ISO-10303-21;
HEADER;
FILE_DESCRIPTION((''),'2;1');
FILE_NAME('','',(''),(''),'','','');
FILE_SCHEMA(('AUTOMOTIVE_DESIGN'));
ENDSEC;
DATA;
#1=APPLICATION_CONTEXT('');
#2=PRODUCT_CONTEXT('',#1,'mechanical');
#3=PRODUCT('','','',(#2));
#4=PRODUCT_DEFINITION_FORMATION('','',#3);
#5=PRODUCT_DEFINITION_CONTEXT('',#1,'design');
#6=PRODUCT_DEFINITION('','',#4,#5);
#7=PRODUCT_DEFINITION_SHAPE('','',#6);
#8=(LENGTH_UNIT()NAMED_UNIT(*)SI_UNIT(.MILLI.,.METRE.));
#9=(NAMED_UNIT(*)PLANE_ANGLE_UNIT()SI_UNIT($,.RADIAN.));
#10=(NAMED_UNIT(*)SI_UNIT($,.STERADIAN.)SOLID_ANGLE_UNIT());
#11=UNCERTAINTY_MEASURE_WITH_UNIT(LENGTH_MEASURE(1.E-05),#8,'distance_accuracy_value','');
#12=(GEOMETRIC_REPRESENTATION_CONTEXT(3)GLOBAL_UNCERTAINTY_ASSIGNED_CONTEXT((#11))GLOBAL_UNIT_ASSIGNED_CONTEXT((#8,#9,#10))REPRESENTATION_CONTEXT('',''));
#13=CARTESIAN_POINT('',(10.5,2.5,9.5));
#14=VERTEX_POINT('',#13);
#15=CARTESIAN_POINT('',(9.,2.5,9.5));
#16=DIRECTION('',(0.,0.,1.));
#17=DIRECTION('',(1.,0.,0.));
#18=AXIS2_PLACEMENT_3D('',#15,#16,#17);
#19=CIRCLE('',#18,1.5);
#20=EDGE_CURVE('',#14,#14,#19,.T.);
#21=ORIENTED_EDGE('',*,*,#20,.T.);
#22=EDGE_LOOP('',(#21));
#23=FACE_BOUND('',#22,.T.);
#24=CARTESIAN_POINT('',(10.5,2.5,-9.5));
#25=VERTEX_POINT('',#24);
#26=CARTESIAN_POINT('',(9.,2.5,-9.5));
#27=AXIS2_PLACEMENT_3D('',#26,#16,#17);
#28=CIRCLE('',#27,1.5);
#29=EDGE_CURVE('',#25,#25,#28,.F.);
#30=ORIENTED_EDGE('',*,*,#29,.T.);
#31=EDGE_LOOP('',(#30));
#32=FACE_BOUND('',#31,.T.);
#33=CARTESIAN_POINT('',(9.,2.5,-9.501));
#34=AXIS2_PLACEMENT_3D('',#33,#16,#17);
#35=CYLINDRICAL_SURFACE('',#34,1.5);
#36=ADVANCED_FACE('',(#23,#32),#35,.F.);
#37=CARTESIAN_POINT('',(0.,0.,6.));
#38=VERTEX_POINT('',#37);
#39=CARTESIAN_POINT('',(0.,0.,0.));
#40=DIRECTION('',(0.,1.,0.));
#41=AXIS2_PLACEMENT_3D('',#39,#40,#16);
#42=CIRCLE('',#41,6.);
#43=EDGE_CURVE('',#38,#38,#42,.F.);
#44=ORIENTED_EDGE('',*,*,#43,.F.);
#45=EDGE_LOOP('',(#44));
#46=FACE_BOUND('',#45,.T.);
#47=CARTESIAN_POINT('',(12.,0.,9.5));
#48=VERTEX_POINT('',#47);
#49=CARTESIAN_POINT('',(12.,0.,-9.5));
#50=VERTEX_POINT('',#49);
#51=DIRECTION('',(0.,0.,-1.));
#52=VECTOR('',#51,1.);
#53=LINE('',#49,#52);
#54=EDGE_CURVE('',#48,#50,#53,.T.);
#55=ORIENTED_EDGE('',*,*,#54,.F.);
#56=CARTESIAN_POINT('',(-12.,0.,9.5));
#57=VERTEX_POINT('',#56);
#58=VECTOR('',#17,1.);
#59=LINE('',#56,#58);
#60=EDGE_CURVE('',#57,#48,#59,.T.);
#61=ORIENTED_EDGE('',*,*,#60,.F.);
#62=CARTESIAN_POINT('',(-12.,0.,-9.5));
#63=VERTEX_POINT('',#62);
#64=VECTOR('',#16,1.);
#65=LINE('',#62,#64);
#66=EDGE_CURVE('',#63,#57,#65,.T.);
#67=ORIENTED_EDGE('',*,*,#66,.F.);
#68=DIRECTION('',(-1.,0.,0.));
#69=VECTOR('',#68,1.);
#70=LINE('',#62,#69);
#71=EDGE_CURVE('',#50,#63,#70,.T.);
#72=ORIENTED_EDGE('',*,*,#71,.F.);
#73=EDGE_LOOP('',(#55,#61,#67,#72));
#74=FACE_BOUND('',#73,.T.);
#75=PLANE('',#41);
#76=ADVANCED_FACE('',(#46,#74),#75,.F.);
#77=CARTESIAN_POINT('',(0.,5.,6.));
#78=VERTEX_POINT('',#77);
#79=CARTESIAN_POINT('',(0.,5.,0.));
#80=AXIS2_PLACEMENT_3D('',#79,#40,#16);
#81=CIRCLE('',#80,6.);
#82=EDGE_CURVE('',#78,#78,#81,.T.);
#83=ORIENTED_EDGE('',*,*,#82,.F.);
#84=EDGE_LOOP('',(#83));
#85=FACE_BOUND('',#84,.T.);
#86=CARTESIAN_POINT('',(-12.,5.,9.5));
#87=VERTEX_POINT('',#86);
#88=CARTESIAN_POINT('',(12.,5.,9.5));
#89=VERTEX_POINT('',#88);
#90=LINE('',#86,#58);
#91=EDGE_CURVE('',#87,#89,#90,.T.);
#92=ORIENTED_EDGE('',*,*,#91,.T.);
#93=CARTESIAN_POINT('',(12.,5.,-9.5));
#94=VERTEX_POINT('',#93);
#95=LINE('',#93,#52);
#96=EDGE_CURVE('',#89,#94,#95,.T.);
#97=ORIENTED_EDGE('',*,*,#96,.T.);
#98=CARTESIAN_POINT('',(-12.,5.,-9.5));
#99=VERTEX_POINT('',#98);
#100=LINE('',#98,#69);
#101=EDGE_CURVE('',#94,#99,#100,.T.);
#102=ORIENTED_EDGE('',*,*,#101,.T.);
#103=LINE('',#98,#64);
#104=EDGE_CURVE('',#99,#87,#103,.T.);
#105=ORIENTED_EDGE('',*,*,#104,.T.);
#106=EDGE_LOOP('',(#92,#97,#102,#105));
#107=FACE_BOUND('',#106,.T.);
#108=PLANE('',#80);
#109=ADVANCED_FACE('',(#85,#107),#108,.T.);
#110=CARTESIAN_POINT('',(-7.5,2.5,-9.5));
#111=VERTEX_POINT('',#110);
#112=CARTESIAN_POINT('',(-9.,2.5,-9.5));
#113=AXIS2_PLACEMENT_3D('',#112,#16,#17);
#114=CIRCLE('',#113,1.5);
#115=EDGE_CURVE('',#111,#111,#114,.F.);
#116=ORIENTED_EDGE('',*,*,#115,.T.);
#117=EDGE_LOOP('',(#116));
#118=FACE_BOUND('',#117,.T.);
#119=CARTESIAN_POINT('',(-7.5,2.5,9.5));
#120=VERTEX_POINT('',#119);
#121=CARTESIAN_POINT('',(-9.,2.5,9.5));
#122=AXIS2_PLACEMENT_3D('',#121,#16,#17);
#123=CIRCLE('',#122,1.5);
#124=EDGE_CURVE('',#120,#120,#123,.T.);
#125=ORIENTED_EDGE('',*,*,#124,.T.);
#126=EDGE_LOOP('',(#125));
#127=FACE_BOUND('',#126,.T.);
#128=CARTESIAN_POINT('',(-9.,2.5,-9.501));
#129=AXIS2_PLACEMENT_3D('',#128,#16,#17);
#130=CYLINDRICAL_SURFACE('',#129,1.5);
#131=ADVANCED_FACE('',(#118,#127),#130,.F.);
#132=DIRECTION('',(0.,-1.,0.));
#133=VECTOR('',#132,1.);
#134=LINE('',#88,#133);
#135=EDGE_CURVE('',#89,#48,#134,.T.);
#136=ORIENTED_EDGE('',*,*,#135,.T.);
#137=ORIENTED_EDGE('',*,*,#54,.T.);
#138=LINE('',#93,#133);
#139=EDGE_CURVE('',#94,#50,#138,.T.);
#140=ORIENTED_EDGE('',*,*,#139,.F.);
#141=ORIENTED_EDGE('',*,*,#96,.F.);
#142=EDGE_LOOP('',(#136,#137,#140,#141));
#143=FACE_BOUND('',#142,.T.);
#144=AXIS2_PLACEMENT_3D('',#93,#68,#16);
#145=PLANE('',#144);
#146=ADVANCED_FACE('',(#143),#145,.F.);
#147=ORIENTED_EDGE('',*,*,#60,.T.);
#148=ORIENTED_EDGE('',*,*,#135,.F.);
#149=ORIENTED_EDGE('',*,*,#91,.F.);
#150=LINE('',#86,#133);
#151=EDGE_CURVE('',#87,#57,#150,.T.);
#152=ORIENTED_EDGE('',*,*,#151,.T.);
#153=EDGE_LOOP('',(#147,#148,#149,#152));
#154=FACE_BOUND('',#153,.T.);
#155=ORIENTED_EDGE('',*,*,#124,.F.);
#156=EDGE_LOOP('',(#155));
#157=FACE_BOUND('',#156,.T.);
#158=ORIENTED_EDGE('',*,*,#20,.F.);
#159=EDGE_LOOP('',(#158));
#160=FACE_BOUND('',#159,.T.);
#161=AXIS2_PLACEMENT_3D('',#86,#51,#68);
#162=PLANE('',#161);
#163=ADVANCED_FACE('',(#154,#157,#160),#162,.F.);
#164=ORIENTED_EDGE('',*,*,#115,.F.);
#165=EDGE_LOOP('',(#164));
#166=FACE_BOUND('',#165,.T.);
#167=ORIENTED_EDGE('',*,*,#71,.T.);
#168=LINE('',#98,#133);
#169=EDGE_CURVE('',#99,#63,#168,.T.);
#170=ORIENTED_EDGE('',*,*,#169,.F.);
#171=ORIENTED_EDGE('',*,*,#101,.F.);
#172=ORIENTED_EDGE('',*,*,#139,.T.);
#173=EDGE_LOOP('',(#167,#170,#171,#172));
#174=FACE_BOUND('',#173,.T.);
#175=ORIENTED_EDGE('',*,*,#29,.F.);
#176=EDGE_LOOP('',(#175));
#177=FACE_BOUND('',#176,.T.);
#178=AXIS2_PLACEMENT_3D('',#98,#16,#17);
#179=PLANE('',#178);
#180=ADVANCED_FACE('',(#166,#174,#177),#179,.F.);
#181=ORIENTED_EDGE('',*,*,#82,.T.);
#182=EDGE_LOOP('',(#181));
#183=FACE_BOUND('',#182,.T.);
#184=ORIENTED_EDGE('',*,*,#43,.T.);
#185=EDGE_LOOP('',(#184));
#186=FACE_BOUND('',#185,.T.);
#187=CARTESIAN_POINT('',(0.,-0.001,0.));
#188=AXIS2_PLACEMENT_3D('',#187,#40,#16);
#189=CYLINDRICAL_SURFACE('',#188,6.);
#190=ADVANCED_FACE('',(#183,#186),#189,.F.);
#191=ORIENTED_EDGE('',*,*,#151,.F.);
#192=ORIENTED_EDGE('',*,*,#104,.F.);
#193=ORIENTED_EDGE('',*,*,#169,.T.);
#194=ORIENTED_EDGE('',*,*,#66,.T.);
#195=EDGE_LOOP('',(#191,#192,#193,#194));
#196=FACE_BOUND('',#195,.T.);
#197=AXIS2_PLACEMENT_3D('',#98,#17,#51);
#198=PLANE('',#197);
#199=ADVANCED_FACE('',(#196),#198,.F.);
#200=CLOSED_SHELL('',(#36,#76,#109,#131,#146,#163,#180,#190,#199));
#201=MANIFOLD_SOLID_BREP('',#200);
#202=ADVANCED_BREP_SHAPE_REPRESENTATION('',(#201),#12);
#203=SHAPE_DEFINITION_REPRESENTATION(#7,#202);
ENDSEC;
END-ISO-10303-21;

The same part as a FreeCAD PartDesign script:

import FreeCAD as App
import Part
import Sketcher


def add_polygon(sketch, points):
    """Adds a closed chain of lines whose ends are joined by coincident constraints."""
    first, n = sketch.GeometryCount, len(points)
    for a, b in zip(points, points[1:] + points[:1]):
        sketch.addGeometry(Part.LineSegment(App.Vector(*a, 0), App.Vector(*b, 0)), False)
    for i in range(n):
        sketch.addConstraint(Sketcher.Constraint("Coincident", first + i, 2, first + (i + 1) % n, 1))

doc = App.newDocument("Part")
body = doc.addObject("PartDesign::Body", "Body")

sketch1 = doc.addObject("Sketcher::SketchObject", "Sketch")
body.addObject(sketch1)
sketch1.AttachmentSupport = (doc.XZ_Plane, [""])
sketch1.MapMode = "FlatFace"
add_polygon(sketch1, [(-12, -9.5), (-12, 9.5), (12, 9.5), (12, -9.5)])
sketch1.addConstraint([
    Sketcher.Constraint("Vertical", 0),
    Sketcher.Constraint("Horizontal", 1),
    Sketcher.Constraint("Vertical", 2),
    Sketcher.Constraint("Horizontal", 3),
    Sketcher.Constraint("Symmetric", 0, 2, 2, 2, -1, 1),
    Sketcher.Constraint("DistanceX", 1, 1, 1, 2, 24.0),
    Sketcher.Constraint("DistanceY", 0, 1, 0, 2, 19.0),
])
pad1 = doc.addObject("PartDesign::Pad", "Pad")
body.addObject(pad1)
pad1.Profile = sketch1
pad1.Length = 5
pad1.Reversed = True

sketch2 = doc.addObject("Sketcher::SketchObject", "Sketch001")
body.addObject(sketch2)
sketch2.AttachmentSupport = (doc.XZ_Plane, [""])
sketch2.MapMode = "FlatFace"
sketch2.AttachmentOffset = App.Placement(App.Vector(0, 0, -5), App.Rotation())
sketch2.addGeometry(Part.Circle(App.Vector(0, 0, 0), App.Vector(0, 0, 1), 6), False)
sketch2.addConstraint([
    Sketcher.Constraint("Coincident", 0, 3, -1, 1),
    Sketcher.Constraint("Diameter", 0, 12.0),
])
pocket1 = doc.addObject("PartDesign::Pocket", "Pocket")
body.addObject(pocket1)
pocket1.Profile = sketch2
pocket1.Type = "UpToFirst"
pocket1.Reversed = True

sketch3 = doc.addObject("Sketcher::SketchObject", "Sketch002")
body.addObject(sketch3)
sketch3.AttachmentSupport = (doc.XY_Plane, [""])
sketch3.MapMode = "FlatFace"
sketch3.AttachmentOffset = App.Placement(App.Vector(0, 0, 9.5), App.Rotation())
sketch3.addGeometry(Part.Circle(App.Vector(-9, 2.5, 0), App.Vector(0, 0, 1), 1.5), False)
sketch3.addConstraint([
    Sketcher.Constraint("Diameter", 0, 3.0),
    Sketcher.Constraint("DistanceX", 0, 3, -1, 1, 9.0),
    Sketcher.Constraint("DistanceY", -1, 1, 0, 3, 2.5),
])
pocket2 = doc.addObject("PartDesign::Pocket", "Pocket001")
body.addObject(pocket2)
pocket2.Profile = sketch3
pocket2.Type = "UpToFirst"

sketch4 = doc.addObject("Sketcher::SketchObject", "Sketch003")
body.addObject(sketch4)
sketch4.AttachmentSupport = (doc.XY_Plane, [""])
sketch4.MapMode = "FlatFace"
sketch4.AttachmentOffset = App.Placement(App.Vector(0, 0, 9.5), App.Rotation())
sketch4.addGeometry(Part.Circle(App.Vector(9, 2.5, 0), App.Vector(0, 0, 1), 1.5), False)
sketch4.addConstraint([
    Sketcher.Constraint("Diameter", 0, 3.0),
    Sketcher.Constraint("DistanceX", -1, 1, 0, 3, 9.0),
    Sketcher.Constraint("DistanceY", -1, 1, 0, 3, 2.5),
])
pocket3 = doc.addObject("PartDesign::Pocket", "Pocket002")
body.addObject(pocket3)
pocket3.Profile = sketch4
pocket3.Type = "UpToFirst"

doc.recompute()
